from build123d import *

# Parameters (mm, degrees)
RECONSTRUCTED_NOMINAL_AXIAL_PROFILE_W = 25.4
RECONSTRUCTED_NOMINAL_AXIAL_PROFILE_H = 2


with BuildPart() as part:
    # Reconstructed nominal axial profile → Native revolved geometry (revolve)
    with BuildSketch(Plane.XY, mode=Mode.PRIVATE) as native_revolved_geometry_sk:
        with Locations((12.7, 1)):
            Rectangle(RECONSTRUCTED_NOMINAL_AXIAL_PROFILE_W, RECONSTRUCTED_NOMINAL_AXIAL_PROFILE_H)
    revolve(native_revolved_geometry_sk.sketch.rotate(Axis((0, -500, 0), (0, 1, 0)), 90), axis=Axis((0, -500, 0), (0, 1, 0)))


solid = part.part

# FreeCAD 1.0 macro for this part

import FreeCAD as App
import Part
import Sketcher

V = App.Vector


def add_polygon(sketch, points):
    """Adds a closed chain of lines whose ends are joined by coincident constraints."""
    first, n = sketch.GeometryCount, len(points)
    for a, b in zip(points, points[1:] + points[:1]):
        sketch.addGeometry(Part.LineSegment(App.Vector(*a, 0), App.Vector(*b, 0)), False)
    for i in range(n):
        sketch.addConstraint(Sketcher.Constraint("Coincident", first + i, 2, first + (i + 1) % n, 1))

doc = App.newDocument("Part")
body = doc.addObject("PartDesign::Body", "Body")

sketch1 = body.newObject("Sketcher::SketchObject", "Sketch")
sketch1.AttachmentSupport = (doc.getObject("XY_Plane"), [""])
sketch1.MapMode = "FlatFace"
add_polygon(sketch1, [(0, 2), (0, 0), (25.4, 0), (25.4, 2)])
sketch1.addConstraint(Sketcher.Constraint("Vertical", 0))
sketch1.addConstraint(Sketcher.Constraint("Horizontal", 1))
sketch1.addConstraint(Sketcher.Constraint("Vertical", 2))
sketch1.addConstraint(Sketcher.Constraint("Horizontal", 3))
sketch1.addConstraint(Sketcher.Constraint("Coincident", 0, 2, -1, 1))
sketch1.addConstraint(Sketcher.Constraint("DistanceY", 0, 2, 0, 1, 2.0))
sketch1.addConstraint(Sketcher.Constraint("DistanceX", 1, 1, 1, 2, 25.4))
revolution = body.newObject("PartDesign::Revolution", "Revolution")
revolution.Profile = sketch1
revolution.ReferenceAxis = (sketch1, ["V_Axis"])
revolution.Angle = 360

doc.recompute()
